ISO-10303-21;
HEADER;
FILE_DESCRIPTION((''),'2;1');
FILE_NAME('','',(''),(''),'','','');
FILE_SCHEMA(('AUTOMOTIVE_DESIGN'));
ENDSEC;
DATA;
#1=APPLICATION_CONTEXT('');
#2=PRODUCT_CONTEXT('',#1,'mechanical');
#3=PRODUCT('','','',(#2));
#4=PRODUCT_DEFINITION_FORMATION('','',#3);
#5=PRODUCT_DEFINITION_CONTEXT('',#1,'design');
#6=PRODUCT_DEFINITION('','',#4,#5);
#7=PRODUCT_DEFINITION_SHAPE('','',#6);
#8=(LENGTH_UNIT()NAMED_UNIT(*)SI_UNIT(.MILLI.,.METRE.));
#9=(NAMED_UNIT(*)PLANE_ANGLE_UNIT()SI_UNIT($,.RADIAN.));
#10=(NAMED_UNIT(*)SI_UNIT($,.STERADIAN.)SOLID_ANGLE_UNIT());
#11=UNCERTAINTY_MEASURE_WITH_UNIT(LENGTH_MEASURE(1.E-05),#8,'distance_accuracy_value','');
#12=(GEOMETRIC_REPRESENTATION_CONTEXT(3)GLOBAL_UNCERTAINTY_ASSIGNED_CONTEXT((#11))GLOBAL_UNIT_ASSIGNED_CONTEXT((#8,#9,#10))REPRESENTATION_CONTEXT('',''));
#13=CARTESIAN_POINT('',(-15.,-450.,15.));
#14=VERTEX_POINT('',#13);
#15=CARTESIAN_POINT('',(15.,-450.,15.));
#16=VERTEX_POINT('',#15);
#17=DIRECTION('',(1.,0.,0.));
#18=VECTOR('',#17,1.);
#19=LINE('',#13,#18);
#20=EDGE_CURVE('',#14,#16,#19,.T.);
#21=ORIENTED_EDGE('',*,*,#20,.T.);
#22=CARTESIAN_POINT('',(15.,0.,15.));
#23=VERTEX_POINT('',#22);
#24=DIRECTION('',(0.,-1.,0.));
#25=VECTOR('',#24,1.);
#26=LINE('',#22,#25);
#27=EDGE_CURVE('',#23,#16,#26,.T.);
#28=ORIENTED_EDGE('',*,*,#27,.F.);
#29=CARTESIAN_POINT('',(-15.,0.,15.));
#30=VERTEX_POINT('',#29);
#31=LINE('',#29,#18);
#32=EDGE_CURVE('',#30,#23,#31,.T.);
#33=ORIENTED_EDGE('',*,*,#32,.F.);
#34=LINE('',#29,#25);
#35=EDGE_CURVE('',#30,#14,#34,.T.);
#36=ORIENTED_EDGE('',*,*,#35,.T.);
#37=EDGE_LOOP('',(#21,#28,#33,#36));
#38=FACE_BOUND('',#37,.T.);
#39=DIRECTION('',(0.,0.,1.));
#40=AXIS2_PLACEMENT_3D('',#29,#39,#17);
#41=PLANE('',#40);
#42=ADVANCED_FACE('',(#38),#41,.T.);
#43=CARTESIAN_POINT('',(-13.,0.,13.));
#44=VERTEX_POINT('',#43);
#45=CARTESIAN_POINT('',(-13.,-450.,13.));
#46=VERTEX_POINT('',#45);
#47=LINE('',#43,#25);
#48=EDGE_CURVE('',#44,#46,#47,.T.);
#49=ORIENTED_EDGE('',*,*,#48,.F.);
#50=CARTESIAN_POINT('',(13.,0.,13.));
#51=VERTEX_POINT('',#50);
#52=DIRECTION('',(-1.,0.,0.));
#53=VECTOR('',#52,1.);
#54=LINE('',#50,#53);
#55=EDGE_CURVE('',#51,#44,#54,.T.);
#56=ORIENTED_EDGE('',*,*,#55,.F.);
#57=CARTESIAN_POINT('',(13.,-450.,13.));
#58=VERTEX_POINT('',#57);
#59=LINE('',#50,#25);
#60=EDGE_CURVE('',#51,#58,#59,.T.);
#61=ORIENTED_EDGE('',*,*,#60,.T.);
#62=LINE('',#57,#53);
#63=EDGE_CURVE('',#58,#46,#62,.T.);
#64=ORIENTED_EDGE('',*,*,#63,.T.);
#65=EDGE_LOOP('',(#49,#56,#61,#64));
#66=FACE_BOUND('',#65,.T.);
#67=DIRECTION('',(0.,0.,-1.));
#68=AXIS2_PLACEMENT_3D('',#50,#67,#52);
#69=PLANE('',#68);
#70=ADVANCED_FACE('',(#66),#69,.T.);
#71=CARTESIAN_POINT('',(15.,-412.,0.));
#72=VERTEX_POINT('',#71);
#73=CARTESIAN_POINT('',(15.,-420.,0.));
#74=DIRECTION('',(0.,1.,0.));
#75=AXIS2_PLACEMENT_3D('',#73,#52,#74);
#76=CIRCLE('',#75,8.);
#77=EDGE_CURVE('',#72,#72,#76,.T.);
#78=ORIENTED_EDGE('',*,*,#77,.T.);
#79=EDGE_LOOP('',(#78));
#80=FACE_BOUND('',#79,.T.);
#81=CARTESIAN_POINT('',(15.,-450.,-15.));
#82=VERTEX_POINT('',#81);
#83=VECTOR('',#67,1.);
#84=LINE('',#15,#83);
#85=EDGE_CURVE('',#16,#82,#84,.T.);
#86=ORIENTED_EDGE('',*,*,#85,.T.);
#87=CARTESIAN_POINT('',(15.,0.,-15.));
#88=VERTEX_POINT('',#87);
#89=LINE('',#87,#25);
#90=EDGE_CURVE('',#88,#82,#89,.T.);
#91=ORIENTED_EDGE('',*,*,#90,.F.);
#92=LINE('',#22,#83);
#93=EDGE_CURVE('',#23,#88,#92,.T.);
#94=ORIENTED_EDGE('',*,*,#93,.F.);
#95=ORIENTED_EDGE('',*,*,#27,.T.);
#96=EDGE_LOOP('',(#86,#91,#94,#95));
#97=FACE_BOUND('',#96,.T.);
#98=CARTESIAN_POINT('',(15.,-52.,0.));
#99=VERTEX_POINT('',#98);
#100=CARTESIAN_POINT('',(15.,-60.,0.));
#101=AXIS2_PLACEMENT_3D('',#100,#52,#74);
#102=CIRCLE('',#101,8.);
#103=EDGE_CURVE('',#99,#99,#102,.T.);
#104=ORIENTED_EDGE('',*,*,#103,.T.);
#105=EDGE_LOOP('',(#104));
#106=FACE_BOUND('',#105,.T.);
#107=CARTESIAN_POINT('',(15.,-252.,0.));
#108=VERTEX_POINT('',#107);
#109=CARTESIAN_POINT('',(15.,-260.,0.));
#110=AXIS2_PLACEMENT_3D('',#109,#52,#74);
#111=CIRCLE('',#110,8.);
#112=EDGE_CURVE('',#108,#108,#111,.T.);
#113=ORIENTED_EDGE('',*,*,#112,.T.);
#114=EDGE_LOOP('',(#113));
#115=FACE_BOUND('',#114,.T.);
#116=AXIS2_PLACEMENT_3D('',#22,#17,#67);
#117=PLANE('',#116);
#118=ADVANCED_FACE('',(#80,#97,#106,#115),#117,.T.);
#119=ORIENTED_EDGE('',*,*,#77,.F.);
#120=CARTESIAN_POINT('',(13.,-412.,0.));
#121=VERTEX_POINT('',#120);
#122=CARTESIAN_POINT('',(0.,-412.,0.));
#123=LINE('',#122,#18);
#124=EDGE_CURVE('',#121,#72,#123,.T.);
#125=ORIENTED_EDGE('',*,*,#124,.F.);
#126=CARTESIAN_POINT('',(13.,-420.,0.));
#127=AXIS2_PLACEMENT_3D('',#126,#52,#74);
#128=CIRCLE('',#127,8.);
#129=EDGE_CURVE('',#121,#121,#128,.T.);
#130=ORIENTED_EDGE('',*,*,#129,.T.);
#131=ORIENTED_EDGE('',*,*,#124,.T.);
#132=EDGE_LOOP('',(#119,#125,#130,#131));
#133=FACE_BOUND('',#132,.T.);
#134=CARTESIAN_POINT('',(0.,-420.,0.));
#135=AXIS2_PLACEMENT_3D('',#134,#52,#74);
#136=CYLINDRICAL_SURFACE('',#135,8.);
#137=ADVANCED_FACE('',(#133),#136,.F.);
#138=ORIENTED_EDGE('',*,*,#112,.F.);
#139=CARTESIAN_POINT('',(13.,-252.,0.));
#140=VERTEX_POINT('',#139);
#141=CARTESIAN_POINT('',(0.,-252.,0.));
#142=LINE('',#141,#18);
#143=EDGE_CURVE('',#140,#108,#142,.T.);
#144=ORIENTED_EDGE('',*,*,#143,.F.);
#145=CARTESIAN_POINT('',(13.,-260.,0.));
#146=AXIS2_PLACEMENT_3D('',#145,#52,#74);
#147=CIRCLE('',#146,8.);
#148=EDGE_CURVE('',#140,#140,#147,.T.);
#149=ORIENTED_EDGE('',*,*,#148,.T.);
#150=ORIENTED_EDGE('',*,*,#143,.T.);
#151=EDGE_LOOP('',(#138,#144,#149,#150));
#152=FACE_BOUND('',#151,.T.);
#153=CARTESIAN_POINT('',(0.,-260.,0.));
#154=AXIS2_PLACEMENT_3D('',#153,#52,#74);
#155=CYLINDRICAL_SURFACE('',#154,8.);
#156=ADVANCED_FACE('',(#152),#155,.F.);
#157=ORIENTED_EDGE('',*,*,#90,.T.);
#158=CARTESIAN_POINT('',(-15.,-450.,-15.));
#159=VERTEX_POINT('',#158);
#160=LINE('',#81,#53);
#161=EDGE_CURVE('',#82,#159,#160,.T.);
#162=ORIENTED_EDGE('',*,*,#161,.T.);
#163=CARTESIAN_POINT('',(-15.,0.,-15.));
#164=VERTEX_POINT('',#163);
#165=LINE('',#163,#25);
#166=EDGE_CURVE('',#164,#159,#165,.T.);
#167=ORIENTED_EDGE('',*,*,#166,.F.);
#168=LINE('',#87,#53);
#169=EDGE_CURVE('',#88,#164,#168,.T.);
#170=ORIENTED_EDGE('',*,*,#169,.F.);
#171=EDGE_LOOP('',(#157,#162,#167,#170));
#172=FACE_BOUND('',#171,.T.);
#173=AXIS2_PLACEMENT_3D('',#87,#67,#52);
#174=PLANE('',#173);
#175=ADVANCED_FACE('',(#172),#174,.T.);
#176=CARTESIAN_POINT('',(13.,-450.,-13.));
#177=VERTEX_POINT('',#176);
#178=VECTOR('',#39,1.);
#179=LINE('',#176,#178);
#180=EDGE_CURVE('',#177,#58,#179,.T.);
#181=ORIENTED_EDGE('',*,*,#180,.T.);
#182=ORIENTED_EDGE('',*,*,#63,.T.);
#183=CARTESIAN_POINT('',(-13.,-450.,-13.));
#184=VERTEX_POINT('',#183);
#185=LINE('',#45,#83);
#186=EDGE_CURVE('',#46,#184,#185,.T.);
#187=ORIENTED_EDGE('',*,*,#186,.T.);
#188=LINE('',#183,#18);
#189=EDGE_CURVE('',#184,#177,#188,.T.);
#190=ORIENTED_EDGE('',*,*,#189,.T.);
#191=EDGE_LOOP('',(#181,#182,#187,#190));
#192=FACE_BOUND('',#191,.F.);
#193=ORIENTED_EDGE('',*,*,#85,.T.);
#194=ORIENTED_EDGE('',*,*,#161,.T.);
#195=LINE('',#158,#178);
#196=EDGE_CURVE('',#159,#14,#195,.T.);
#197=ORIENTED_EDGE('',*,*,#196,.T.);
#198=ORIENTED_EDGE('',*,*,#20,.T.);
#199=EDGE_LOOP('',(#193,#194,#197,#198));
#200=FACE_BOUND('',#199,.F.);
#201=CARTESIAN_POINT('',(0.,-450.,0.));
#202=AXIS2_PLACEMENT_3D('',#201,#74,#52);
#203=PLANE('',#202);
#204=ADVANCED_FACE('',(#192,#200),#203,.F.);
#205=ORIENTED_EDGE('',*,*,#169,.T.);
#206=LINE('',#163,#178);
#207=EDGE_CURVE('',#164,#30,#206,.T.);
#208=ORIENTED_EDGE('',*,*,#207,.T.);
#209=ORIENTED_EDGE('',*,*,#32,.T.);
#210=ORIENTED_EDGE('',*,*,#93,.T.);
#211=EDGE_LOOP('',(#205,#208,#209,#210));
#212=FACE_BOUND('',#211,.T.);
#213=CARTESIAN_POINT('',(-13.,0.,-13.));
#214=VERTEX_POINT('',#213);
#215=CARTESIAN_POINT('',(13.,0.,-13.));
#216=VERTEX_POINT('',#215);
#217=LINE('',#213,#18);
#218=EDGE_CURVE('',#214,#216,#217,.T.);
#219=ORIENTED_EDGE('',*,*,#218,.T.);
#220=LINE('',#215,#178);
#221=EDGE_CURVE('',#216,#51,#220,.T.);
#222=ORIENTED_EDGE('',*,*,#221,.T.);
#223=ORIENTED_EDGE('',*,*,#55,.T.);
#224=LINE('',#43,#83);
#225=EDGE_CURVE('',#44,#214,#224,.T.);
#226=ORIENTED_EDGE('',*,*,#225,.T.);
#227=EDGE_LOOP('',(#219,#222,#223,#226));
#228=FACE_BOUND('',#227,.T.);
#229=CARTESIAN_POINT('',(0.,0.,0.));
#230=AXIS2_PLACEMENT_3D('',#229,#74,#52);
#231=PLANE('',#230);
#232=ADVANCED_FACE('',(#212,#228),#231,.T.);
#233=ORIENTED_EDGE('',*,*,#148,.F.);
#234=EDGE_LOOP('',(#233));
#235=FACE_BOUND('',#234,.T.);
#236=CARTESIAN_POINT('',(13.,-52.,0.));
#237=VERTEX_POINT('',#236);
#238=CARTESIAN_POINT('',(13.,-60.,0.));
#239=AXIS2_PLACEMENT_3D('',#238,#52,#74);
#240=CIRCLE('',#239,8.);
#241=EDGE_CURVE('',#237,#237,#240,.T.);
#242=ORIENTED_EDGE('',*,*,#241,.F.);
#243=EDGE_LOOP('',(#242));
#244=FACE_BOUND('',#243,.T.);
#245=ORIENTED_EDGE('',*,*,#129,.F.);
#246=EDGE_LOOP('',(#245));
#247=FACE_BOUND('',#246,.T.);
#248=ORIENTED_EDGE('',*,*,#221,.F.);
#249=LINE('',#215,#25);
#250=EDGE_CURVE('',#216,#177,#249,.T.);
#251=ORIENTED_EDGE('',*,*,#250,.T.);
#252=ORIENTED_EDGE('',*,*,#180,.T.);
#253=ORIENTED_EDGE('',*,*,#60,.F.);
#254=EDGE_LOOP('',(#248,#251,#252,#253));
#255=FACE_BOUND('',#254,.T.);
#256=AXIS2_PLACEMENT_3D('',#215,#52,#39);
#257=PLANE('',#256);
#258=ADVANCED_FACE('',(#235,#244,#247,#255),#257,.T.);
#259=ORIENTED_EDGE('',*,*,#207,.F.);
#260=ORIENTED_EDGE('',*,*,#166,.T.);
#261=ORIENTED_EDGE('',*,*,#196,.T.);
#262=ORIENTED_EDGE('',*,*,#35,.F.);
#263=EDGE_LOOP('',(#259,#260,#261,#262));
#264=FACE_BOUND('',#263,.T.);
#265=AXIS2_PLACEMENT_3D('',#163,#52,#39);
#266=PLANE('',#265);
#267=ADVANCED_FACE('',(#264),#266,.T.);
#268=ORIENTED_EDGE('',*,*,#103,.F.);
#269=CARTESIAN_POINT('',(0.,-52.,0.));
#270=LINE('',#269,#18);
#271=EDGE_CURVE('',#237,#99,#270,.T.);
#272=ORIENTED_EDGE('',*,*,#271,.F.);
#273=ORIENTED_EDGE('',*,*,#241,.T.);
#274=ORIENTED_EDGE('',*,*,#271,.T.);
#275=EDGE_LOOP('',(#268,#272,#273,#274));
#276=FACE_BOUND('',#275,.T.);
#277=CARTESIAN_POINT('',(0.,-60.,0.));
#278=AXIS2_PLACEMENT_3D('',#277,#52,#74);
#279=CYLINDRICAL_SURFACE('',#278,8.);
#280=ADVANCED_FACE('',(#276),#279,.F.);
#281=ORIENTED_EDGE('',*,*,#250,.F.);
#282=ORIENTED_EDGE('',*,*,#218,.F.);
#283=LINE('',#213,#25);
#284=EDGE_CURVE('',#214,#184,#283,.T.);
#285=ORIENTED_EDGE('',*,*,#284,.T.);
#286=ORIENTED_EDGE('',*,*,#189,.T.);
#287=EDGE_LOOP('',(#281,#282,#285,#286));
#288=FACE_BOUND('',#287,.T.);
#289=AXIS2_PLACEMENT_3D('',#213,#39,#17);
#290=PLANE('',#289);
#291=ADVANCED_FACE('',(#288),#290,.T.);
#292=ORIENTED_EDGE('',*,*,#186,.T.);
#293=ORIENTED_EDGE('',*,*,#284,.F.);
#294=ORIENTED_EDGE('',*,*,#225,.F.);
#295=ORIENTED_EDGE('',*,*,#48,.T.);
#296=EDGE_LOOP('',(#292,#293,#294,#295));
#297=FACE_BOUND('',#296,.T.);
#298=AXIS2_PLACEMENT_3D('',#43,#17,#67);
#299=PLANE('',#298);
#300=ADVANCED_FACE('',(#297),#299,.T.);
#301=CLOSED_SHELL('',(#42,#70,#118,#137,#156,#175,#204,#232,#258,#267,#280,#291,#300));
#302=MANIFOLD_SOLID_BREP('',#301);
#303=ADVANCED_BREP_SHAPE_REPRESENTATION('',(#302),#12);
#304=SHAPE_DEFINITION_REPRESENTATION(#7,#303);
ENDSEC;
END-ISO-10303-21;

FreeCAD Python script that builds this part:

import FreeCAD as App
import Part
import Sketcher
Q = App.Units.Quantity

doc = App.newDocument("Part")
body = doc.addObject("PartDesign::Body", "Body")

# Sketch on XZ plane
sketch1 = doc.addObject("Sketcher::SketchObject", "Sketch")
body.addObject(sketch1)
sketch1.AttachmentSupport = (doc.XZ_Plane, [""])
sketch1.MapMode = "FlatFace"
sketch1.addGeometry(Part.LineSegment(App.Vector(-15, -15, 0), App.Vector(-15, 15, 0)), False)
sketch1.addGeometry(Part.LineSegment(App.Vector(-15, 15, 0), App.Vector(15, 15, 0)), False)
sketch1.addGeometry(Part.LineSegment(App.Vector(15, 15, 0), App.Vector(15, -15, 0)), False)
sketch1.addGeometry(Part.LineSegment(App.Vector(15, -15, 0), App.Vector(-15, -15, 0)), False)
sketch1.addGeometry(Part.LineSegment(App.Vector(13, -13, 0), App.Vector(13, 13, 0)), False)
sketch1.addGeometry(Part.LineSegment(App.Vector(13, 13, 0), App.Vector(-13, 13, 0)), False)
sketch1.addGeometry(Part.LineSegment(App.Vector(-13, 13, 0), App.Vector(-13, -13, 0)), False)
sketch1.addGeometry(Part.LineSegment(App.Vector(-13, -13, 0), App.Vector(13, -13, 0)), False)
sketch1.addConstraint(Sketcher.Constraint("Coincident", 0, 2, 1, 1))
sketch1.addConstraint(Sketcher.Constraint("Coincident", 1, 2, 2, 1))
sketch1.addConstraint(Sketcher.Constraint("Coincident", 2, 2, 3, 1))
sketch1.addConstraint(Sketcher.Constraint("Coincident", 3, 2, 0, 1))
sketch1.addConstraint(Sketcher.Constraint("Coincident", 4, 2, 5, 1))
sketch1.addConstraint(Sketcher.Constraint("Coincident", 5, 2, 6, 1))
sketch1.addConstraint(Sketcher.Constraint("Coincident", 6, 2, 7, 1))
sketch1.addConstraint(Sketcher.Constraint("Coincident", 7, 2, 4, 1))
sketch1.addConstraint(Sketcher.Constraint("Vertical", 0))
sketch1.addConstraint(Sketcher.Constraint("Horizontal", 1))
sketch1.addConstraint(Sketcher.Constraint("Vertical", 2))
sketch1.addConstraint(Sketcher.Constraint("Horizontal", 3))
sketch1.addConstraint(Sketcher.Constraint("Vertical", 4))
sketch1.addConstraint(Sketcher.Constraint("Horizontal", 5))
sketch1.addConstraint(Sketcher.Constraint("Vertical", 6))
sketch1.addConstraint(Sketcher.Constraint("Horizontal", 7))
sketch1.addConstraint(Sketcher.Constraint("Symmetric", 0, 2, 2, 2, -1, 1))
sketch1.addConstraint(Sketcher.Constraint("Symmetric", 4, 2, 6, 2, -1, 1))
sketch1.addConstraint(Sketcher.Constraint("Equal", 3, 0))
sketch1.addConstraint(Sketcher.Constraint("Equal", 7, 4))
sketch1.addConstraint(Sketcher.Constraint("DistanceX", 1, 1, 1, 2, Q("30 mm")))
sketch1.addConstraint(Sketcher.Constraint("DistanceX", 4, 2, 1, 2, Q("2 mm")))
pad1 = doc.addObject("PartDesign::Pad", "Pad")
body.addObject(pad1)
pad1.Profile = sketch1
pad1.Length = 450

# Sketch on YZ plane
sketch2 = doc.addObject("Sketcher::SketchObject", "Sketch001")
body.addObject(sketch2)
sketch2.AttachmentSupport = (doc.YZ_Plane, [""])
sketch2.MapMode = "FlatFace"
sketch2.addGeometry(Part.Circle(App.Vector(-60, 0, 0), App.Vector(0, 0, 1), 8), False)
sketch2.addGeometry(Part.Circle(App.Vector(-260, 0, 0), App.Vector(0, 0, 1), 8), False)
sketch2.addGeometry(Part.Circle(App.Vector(-420, 0, 0), App.Vector(0, 0, 1), 8), False)
sketch2.addConstraint(Sketcher.Constraint("Equal", 0, 1))
sketch2.addConstraint(Sketcher.Constraint("Equal", 1, 2))
sketch2.addConstraint(Sketcher.Constraint("PointOnObject", 0, 3, -1))
sketch2.addConstraint(Sketcher.Constraint("PointOnObject", 1, 3, -1))
sketch2.addConstraint(Sketcher.Constraint("PointOnObject", 2, 3, -1))
sketch2.addConstraint(Sketcher.Constraint("Diameter", 0, Q("16 mm")))
sketch2.addConstraint(Sketcher.Constraint("DistanceX", 0, 3, -1, 1, Q("60 mm")))
sketch2.addConstraint(Sketcher.Constraint("DistanceX", 1, 3, -1, 1, Q("260 mm")))
sketch2.addConstraint(Sketcher.Constraint("DistanceX", 2, 3, -1, 1, Q("420 mm")))
pocket1 = doc.addObject("PartDesign::Pocket", "Pocket")
body.addObject(pocket1)
pocket1.Profile = sketch2
pocket1.Type = "ThroughAll"
pocket1.Reversed = True

doc.recompute()
